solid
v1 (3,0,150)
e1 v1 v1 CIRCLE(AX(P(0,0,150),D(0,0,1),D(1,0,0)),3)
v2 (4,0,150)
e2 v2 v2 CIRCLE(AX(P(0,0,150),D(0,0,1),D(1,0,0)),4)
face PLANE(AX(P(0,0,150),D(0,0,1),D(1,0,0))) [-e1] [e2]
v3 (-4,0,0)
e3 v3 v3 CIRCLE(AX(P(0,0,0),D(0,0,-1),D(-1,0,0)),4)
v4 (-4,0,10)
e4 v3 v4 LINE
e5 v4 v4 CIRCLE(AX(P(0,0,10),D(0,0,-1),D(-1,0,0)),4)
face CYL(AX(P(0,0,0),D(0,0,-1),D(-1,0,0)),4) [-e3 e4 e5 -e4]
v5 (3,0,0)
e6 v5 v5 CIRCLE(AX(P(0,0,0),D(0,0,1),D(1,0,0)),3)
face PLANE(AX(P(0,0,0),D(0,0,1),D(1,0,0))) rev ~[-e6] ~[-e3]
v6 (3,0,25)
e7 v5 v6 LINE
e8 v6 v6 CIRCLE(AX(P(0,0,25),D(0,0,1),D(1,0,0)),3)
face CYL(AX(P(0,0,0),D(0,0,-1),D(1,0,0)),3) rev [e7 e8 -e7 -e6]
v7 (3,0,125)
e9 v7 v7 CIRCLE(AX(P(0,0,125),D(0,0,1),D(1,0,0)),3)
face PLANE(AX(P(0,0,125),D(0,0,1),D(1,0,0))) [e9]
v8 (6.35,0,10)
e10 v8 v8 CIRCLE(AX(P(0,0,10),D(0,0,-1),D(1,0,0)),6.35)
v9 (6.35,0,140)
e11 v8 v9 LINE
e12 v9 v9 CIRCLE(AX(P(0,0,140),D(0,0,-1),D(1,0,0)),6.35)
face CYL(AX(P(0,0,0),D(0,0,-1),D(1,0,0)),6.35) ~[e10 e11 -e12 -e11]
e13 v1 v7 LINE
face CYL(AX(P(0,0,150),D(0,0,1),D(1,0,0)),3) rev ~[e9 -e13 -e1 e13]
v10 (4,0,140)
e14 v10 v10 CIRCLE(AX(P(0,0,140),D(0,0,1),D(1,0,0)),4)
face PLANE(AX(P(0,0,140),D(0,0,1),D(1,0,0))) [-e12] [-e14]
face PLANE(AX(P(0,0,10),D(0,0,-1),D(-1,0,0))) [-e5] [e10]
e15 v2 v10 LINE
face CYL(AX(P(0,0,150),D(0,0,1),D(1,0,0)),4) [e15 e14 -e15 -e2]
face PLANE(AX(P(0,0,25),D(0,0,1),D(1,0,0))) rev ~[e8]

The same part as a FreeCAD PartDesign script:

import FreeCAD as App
import Part
import Sketcher

V = App.Vector
Q = App.Units.Quantity

doc = App.newDocument("Part")
body = doc.addObject("PartDesign::Body", "Body")

# Sketch on XY plane
sketch1 = body.newObject("Sketcher::SketchObject", "Sketch")
sketch1.AttachmentSupport = (doc.getObject("XY_Plane"), [""])
sketch1.MapMode = "FlatFace"
sketch1.addGeometry(Part.Circle(V(0, 0, 0), V(0, 0, 1), 6), False)
sketch1.addConstraint(Sketcher.Constraint("Coincident", 0, 3, -1, 1))
sketch1.addConstraint(Sketcher.Constraint("Diameter", 0, Q("12.7 mm")))
pad1 = body.newObject("PartDesign::Pad", "Pad")
pad1.Profile = sketch1
pad1.Length = 150

# Sketch on XY plane
sketch2 = body.newObject("Sketcher::SketchObject", "Sketch001")
sketch2.AttachmentSupport = (doc.getObject("XY_Plane"), [""])
sketch2.MapMode = "FlatFace"
sketch2.AttachmentOffset = App.Placement(V(0, 0, 150), App.Rotation())
sketch2.addGeometry(Part.Circle(V(0, 0, 0), V(0, 0, 1), 3), False)
sketch2.addConstraint(Sketcher.Constraint("Coincident", 0, 3, -1, 1))
sketch2.addConstraint(Sketcher.Constraint("Diameter", 0, Q("6 mm")))
pocket1 = body.newObject("PartDesign::Pocket", "Pocket")
pocket1.Profile = sketch2
pocket1.Length = 25

# Sketch on XY plane
sketch3 = body.newObject("Sketcher::SketchObject", "Sketch002")
sketch3.AttachmentSupport = (doc.getObject("XY_Plane"), [""])
sketch3.MapMode = "FlatFace"
sketch3.addGeometry(Part.Circle(V(0, 0, 0), V(0, 0, 1), 3), False)
sketch3.addConstraint(Sketcher.Constraint("Coincident", 0, 3, -1, 1))
sketch3.addConstraint(Sketcher.Constraint("Diameter", 0, Q("6 mm")))
pocket2 = body.newObject("PartDesign::Pocket", "Pocket001")
pocket2.Profile = sketch3
pocket2.Length = 25
pocket2.Reversed = True

# Sketch on XY plane
sketch4 = body.newObject("Sketcher::SketchObject", "Sketch003")
sketch4.AttachmentSupport = (doc.getObject("XY_Plane"), [""])
sketch4.MapMode = "FlatFace"
sketch4.addGeometry(Part.Circle(V(0, 0, 0), V(0, 0, 1), 7), False)
sketch4.addGeometry(Part.Circle(V(0, 0, 0), V(0, 0, 1), 4), False)
sketch4.addConstraint(Sketcher.Constraint("Coincident", 0, 3, -1, 1))
sketch4.addConstraint(Sketcher.Constraint("Coincident", 1, 3, -1, 1))
sketch4.addConstraint(Sketcher.Constraint("Diameter", 0, Q("14 mm")))
sketch4.addConstraint(Sketcher.Constraint("Diameter", 1, Q("8 mm")))
pocket3 = body.newObject("PartDesign::Pocket", "Pocket002")
pocket3.Profile = sketch4
pocket3.Length = 10
pocket3.Reversed = True

# Sketch on XY plane
sketch5 = body.newObject("Sketcher::SketchObject", "Sketch004")
sketch5.AttachmentSupport = (doc.getObject("XY_Plane"), [""])
sketch5.MapMode = "FlatFace"
sketch5.AttachmentOffset = App.Placement(V(0, 0, 150), App.Rotation())
sketch5.addGeometry(Part.Circle(V(0, 0, 0), V(0, 0, 1), 7), False)
sketch5.addGeometry(Part.Circle(V(0, 0, 0), V(0, 0, 1), 4), False)
sketch5.addConstraint(Sketcher.Constraint("Coincident", 0, 3, -1, 1))
sketch5.addConstraint(Sketcher.Constraint("Coincident", 1, 3, -1, 1))
sketch5.addConstraint(Sketcher.Constraint("Diameter", 0, Q("14 mm")))
sketch5.addConstraint(Sketcher.Constraint("Diameter", 1, Q("8 mm")))
pocket4 = body.newObject("PartDesign::Pocket", "Pocket003")
pocket4.Profile = sketch5
pocket4.Length = 10

doc.recompute()
